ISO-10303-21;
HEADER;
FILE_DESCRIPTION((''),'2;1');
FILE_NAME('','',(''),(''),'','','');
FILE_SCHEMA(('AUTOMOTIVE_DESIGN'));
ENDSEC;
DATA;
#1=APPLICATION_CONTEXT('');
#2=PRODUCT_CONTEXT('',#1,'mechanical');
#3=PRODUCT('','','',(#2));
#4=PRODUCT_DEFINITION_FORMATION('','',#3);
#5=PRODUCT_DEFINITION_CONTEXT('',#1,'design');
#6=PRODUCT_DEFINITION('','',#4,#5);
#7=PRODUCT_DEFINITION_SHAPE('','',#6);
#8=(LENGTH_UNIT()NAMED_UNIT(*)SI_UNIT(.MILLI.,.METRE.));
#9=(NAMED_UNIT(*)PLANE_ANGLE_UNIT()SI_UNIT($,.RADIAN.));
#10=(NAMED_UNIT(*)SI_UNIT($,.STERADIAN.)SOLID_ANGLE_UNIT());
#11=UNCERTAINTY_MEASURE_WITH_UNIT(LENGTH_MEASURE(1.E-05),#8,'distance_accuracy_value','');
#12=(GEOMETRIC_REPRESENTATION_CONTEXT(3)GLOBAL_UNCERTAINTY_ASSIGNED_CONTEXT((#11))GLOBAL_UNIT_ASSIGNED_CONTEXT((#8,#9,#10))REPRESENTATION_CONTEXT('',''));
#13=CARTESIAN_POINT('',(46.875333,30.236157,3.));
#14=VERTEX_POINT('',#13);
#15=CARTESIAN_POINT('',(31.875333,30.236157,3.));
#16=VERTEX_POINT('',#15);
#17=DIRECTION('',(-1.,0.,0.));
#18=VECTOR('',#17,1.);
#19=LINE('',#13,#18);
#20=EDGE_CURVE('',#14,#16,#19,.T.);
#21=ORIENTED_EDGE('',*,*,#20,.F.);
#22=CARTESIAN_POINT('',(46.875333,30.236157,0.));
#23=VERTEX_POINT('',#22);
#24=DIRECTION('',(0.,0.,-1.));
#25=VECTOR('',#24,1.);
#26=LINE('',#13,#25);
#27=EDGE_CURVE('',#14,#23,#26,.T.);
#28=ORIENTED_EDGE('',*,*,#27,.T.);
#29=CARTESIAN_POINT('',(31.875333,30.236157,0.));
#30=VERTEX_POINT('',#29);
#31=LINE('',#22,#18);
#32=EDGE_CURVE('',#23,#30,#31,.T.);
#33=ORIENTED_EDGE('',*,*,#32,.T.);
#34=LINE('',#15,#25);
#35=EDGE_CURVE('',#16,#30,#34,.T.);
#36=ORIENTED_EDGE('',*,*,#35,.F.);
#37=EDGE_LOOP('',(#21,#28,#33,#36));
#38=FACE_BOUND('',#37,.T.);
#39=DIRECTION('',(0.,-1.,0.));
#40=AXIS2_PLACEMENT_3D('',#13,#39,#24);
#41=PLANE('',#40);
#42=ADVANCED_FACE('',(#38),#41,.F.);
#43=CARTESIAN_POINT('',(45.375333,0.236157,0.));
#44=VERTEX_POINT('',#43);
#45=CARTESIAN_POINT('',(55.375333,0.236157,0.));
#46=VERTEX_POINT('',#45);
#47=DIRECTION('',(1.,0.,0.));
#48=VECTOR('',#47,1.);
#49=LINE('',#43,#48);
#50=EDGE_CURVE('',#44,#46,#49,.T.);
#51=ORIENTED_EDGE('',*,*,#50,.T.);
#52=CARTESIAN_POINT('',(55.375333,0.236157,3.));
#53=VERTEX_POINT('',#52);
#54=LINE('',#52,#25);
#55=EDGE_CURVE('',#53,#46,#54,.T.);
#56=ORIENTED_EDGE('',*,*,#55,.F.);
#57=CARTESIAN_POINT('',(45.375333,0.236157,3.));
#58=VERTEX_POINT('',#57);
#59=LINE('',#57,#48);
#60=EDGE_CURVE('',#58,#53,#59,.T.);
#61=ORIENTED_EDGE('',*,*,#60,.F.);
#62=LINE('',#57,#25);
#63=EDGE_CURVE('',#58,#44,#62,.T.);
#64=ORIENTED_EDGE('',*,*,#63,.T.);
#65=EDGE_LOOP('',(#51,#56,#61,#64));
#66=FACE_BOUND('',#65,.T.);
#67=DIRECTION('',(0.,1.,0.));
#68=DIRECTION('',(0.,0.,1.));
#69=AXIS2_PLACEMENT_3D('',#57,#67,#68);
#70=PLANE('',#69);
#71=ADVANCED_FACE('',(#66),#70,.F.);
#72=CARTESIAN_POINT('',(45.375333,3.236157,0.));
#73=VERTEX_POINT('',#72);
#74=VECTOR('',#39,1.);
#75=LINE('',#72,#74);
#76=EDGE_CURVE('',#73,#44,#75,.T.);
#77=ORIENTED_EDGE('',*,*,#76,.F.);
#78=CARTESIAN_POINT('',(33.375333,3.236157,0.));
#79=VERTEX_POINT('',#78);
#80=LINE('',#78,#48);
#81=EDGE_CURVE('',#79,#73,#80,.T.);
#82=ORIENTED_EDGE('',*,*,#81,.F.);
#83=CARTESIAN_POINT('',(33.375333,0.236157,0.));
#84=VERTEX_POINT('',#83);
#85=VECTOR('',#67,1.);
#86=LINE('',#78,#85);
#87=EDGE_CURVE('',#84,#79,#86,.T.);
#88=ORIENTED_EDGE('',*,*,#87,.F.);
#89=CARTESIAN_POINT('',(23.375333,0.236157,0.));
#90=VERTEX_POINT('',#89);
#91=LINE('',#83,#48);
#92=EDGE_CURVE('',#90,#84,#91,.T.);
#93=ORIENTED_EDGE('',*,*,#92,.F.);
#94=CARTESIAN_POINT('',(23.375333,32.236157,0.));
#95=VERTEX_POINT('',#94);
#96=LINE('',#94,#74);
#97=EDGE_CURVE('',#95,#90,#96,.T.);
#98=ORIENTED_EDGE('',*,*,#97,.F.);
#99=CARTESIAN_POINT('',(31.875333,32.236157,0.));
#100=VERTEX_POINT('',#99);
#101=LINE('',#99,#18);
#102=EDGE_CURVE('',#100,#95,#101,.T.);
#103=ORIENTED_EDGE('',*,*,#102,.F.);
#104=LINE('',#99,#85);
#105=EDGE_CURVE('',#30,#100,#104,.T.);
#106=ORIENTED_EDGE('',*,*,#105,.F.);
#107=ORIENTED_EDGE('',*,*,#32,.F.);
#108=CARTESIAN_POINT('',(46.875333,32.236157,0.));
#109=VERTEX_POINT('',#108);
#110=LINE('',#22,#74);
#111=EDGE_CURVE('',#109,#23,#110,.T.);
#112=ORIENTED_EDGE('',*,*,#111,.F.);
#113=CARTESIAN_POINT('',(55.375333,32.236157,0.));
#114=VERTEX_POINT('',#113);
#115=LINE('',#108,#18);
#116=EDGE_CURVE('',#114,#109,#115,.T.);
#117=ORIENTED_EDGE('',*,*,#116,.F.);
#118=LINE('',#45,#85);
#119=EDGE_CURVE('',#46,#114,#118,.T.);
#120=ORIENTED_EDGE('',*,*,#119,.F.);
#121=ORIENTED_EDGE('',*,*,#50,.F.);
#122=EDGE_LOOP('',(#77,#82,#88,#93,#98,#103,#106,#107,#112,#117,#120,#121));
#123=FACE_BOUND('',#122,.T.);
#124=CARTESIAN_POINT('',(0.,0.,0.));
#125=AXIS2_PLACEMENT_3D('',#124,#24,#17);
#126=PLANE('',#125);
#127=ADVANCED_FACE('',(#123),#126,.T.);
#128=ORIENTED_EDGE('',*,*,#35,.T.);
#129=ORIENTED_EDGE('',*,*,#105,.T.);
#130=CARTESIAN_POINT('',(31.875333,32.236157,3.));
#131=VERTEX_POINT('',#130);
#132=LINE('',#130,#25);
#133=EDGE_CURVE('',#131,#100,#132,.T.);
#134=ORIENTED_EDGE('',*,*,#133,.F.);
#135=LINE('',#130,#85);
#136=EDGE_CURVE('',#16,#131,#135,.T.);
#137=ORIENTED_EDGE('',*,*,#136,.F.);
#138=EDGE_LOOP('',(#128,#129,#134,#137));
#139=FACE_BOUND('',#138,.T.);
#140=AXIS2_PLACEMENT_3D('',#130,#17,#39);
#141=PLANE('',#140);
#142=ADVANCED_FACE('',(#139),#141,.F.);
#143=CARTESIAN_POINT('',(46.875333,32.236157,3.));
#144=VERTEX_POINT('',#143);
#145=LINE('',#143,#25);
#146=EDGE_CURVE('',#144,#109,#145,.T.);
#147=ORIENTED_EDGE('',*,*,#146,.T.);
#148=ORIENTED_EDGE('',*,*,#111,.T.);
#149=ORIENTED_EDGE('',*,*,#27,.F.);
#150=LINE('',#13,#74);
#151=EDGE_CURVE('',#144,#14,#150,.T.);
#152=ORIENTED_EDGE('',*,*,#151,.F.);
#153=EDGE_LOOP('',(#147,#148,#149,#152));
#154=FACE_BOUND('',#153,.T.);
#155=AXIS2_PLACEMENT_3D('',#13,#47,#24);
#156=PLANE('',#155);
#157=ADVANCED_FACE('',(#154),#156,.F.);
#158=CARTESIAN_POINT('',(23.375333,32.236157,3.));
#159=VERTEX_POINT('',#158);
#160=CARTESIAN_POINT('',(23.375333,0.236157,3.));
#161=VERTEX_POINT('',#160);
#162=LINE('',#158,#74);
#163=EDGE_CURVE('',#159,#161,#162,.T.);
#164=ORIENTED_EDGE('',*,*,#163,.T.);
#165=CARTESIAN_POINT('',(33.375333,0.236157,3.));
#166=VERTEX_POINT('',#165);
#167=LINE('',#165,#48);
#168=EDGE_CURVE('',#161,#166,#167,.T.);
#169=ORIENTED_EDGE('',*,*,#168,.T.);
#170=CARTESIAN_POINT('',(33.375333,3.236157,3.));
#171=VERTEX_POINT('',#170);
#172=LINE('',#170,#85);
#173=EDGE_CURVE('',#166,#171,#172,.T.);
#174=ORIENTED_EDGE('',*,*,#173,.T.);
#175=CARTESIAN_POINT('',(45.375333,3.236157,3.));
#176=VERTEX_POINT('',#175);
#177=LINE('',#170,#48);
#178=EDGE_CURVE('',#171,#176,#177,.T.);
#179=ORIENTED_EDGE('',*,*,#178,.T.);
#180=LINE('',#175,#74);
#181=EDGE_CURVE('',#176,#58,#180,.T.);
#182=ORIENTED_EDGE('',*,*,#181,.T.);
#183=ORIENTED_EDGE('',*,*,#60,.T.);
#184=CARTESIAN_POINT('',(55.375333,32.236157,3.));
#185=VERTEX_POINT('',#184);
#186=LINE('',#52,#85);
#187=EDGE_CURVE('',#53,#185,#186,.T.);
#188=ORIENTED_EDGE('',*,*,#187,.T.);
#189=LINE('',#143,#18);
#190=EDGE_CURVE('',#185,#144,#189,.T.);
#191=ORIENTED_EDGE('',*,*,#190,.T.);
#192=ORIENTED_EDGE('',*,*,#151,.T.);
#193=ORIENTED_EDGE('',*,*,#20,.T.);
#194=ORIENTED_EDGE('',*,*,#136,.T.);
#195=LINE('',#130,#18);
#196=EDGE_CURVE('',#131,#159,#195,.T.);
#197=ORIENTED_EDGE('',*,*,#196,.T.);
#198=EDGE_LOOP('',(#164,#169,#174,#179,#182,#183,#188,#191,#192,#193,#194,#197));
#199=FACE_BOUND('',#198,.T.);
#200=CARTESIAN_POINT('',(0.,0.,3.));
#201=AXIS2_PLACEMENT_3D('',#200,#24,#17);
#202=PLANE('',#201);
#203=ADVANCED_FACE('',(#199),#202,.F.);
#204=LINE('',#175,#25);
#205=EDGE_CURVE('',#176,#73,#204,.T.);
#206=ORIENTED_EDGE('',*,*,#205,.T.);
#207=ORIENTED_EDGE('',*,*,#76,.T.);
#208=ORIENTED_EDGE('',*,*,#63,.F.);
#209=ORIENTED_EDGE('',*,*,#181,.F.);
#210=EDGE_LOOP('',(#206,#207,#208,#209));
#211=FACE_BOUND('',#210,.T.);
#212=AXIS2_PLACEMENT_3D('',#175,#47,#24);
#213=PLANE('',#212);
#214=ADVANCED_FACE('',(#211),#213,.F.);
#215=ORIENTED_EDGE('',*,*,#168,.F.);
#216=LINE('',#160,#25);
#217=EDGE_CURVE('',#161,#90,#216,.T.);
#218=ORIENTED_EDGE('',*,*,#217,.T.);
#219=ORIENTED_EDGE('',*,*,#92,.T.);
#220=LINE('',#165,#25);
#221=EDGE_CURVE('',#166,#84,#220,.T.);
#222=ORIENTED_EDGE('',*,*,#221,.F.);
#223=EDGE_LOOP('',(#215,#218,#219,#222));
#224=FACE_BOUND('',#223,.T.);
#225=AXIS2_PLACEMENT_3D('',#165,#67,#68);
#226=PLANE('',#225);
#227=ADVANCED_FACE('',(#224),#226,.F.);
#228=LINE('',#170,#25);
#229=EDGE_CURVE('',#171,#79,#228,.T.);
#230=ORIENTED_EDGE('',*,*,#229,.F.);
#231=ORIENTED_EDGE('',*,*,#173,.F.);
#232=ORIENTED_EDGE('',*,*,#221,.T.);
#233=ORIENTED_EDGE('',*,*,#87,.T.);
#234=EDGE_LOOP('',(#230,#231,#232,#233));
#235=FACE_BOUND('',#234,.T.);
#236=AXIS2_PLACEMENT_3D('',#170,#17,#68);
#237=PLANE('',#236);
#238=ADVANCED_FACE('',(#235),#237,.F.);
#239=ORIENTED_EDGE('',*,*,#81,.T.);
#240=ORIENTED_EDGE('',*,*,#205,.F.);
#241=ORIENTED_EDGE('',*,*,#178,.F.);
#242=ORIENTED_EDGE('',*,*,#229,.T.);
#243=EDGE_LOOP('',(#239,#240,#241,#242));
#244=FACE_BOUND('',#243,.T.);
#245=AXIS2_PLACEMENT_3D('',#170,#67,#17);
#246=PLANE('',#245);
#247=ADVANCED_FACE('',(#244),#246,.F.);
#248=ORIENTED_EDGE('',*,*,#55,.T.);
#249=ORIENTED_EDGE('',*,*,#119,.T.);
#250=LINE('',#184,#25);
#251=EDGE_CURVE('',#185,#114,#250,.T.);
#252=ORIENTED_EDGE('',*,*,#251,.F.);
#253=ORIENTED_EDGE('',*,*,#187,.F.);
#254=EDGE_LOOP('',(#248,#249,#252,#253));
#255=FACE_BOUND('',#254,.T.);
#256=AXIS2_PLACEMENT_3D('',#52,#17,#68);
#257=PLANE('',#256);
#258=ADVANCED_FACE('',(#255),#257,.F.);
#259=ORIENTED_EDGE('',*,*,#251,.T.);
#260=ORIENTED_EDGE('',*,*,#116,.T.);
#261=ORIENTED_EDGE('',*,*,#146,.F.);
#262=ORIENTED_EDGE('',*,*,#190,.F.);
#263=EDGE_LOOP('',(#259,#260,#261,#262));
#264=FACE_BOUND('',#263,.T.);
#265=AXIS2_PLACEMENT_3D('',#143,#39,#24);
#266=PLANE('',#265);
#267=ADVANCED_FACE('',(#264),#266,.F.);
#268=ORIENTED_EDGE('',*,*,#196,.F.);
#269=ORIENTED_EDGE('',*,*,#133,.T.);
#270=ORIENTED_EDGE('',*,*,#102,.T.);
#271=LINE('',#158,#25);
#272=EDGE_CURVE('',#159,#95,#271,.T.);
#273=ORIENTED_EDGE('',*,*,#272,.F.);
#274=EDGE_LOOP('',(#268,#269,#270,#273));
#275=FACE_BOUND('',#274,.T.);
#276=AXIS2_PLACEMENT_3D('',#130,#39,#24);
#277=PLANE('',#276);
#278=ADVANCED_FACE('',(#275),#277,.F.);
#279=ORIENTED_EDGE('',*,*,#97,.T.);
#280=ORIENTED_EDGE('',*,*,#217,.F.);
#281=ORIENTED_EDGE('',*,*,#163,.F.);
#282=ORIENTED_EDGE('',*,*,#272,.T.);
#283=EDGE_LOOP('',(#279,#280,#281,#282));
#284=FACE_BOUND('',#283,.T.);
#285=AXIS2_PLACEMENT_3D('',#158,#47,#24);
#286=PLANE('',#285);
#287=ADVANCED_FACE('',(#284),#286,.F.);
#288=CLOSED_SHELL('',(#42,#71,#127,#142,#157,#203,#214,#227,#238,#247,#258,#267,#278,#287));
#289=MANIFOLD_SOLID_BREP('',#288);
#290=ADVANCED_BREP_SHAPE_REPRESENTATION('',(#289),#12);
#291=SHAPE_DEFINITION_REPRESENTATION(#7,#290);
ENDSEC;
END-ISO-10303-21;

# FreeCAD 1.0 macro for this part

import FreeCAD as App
import Part
import Sketcher


def add_polygon(sketch, points):
    """Adds a closed chain of lines whose ends are joined by coincident constraints."""
    first, n = sketch.GeometryCount, len(points)
    for a, b in zip(points, points[1:] + points[:1]):
        sketch.addGeometry(Part.LineSegment(App.Vector(*a, 0), App.Vector(*b, 0)), False)
    for i in range(n):
        sketch.addConstraint(Sketcher.Constraint("Coincident", first + i, 2, first + (i + 1) % n, 1))

doc = App.newDocument("Part")
body = doc.addObject("PartDesign::Body", "Body")

sketch1 = body.newObject("Sketcher::SketchObject", "Sketch")
sketch1.AttachmentSupport = (doc.getObject("XY_Plane"), [""])
sketch1.MapMode = "FlatFace"
add_polygon(sketch1, [(31.875333, 32.236157), (23.375333, 32.236157), (23.375333, 0.236157), (33.375333, 0.236157), (33.375333, 3.236157), (45.375333, 3.236157), (45.375333, 0.236157), (55.375333, 0.236157), (55.375333, 32.236157), (46.875333, 32.236157), (46.875333, 30.236157), (31.875333, 30.236157)])
sketch1.addConstraint([
    Sketcher.Constraint("Horizontal", 0),
    Sketcher.Constraint("Vertical", 1),
    Sketcher.Constraint("Horizontal", 2),
    Sketcher.Constraint("Vertical", 3),
    Sketcher.Constraint("Horizontal", 4),
    Sketcher.Constraint("Vertical", 5),
    Sketcher.Constraint("Horizontal", 6),
    Sketcher.Constraint("Vertical", 7),
    Sketcher.Constraint("Horizontal", 8),
    Sketcher.Constraint("Vertical", 9),
    Sketcher.Constraint("Horizontal", 10),
    Sketcher.Constraint("Vertical", 11),
    Sketcher.Constraint("Horizontal", 2, 2, 5, 2),
    Sketcher.Constraint("Horizontal", 0, 2, 7, 2),
    Sketcher.Constraint("Equal", 2, 6),
    Sketcher.Constraint("Equal", 0, 8),
    Sketcher.Constraint("DistanceX", 2, 1, 2, 2, 10.0),
    Sketcher.Constraint("DistanceX", 4, 1, 4, 2, 12.0),
    Sketcher.Constraint("DistanceX", 10, 2, 10, 1, 15.0),
    Sketcher.Constraint("DistanceY", 1, 2, 1, 1, 32.0),
    Sketcher.Constraint("DistanceY", 3, 1, 3, 2, 3.0),
    Sketcher.Constraint("DistanceY", 9, 2, 9, 1, 2.0),
    Sketcher.Constraint("DistanceX", -1, 1, 0, 2, 23.375333),
    Sketcher.Constraint("DistanceY", -1, 1, 0, 2, 32.236157),
])
pad1 = body.newObject("PartDesign::Pad", "Pad")
pad1.Profile = sketch1
pad1.Length = 3

doc.recompute()
